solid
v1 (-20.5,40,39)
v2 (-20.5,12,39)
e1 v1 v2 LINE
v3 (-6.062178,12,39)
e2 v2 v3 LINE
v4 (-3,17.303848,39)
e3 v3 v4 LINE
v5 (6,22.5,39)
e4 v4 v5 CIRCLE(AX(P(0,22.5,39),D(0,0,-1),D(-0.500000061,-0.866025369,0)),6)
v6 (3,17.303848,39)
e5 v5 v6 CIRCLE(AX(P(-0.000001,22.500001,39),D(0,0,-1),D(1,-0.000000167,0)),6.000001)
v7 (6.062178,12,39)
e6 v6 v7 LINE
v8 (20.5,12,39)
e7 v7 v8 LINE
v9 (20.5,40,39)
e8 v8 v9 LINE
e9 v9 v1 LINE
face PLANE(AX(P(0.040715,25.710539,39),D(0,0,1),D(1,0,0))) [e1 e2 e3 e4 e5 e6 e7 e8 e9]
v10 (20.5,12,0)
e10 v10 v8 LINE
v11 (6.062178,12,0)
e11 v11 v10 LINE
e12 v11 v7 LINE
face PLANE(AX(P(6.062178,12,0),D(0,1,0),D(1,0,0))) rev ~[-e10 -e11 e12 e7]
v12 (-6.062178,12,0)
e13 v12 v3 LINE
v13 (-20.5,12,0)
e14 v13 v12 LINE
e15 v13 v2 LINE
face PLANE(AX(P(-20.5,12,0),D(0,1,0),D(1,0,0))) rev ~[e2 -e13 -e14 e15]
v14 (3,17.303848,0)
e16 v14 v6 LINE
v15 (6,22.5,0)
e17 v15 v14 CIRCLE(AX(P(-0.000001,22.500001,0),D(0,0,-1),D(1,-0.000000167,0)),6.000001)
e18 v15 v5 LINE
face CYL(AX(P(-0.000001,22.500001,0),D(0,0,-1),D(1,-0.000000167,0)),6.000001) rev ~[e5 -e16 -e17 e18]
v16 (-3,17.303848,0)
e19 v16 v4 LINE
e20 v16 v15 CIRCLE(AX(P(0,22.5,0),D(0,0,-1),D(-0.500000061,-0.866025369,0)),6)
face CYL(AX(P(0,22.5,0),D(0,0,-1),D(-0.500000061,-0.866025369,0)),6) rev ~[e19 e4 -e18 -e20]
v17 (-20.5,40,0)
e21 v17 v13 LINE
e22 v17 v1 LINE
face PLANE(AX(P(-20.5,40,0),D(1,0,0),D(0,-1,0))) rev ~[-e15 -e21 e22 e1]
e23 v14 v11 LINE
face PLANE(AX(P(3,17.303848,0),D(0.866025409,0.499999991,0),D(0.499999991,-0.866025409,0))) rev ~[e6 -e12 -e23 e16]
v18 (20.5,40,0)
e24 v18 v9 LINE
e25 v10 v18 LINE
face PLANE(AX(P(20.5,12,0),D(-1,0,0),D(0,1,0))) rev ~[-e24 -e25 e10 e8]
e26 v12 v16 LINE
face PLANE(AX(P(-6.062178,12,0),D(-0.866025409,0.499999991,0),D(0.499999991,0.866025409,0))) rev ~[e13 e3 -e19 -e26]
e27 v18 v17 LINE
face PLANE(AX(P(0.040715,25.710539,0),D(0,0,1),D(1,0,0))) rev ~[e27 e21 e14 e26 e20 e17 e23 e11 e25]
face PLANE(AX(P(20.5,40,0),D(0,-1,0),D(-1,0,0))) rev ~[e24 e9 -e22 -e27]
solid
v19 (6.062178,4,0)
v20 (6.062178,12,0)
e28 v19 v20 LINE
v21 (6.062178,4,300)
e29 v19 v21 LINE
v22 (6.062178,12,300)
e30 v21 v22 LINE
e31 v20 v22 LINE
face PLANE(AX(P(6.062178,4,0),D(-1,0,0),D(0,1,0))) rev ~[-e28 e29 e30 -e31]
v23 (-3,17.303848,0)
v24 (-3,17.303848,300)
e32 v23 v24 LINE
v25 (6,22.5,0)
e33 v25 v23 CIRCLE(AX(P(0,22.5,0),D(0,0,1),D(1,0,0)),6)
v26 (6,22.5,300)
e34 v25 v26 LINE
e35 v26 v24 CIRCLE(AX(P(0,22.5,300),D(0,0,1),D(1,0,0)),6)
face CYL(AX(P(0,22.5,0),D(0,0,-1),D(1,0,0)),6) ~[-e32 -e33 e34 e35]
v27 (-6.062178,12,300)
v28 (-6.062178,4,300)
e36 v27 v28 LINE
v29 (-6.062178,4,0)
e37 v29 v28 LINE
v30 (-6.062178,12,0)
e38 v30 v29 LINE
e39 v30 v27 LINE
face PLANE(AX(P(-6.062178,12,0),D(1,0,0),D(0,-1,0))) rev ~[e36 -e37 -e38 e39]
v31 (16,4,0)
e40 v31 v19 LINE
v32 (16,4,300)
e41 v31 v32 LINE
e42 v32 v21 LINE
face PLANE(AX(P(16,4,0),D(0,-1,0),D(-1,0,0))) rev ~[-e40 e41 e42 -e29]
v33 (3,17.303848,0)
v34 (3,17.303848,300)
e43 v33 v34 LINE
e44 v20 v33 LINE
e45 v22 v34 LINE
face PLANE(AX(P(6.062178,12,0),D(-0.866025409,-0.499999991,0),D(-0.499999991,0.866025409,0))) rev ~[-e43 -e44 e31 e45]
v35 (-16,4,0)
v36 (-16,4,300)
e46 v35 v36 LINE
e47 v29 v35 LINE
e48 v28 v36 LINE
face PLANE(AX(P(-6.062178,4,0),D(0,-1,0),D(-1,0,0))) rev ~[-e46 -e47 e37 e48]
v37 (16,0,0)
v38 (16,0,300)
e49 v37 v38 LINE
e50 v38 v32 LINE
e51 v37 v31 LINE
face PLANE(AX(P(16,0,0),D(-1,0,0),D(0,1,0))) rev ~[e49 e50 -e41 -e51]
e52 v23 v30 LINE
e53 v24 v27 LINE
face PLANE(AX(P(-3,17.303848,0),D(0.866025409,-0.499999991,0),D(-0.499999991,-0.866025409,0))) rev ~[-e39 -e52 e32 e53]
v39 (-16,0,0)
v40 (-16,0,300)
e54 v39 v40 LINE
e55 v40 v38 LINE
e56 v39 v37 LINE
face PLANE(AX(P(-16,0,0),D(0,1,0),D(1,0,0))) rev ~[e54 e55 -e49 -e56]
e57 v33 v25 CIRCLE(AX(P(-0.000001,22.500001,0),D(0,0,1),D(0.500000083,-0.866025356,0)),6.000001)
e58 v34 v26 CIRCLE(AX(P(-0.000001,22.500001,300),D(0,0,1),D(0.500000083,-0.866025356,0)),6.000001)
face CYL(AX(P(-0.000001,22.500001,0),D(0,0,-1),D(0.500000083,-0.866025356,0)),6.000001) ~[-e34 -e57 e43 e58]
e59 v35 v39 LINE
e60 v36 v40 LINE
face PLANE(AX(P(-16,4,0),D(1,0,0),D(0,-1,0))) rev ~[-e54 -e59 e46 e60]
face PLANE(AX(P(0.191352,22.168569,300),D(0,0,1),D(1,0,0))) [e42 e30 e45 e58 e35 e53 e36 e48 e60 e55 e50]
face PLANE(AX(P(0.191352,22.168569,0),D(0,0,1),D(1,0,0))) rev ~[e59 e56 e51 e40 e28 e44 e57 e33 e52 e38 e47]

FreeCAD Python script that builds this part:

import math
import FreeCAD as App
import Part
import Sketcher

V = App.Vector
Q = App.Units.Quantity

doc = App.newDocument("Part")
body = doc.addObject("PartDesign::Body", "Body")

# Sketch on XY plane
sketch1 = body.newObject("Sketcher::SketchObject", "Sketch")
sketch1.AttachmentSupport = (doc.getObject("XY_Plane"), [""])
sketch1.MapMode = "FlatFace"
sketch1.addGeometry([
    Part.ArcOfCircle(Part.Circle(V(-0.000001, 22.500001, 0), V(0, 0, 1), 6.000001), math.radians(-59.999994), math.radians(-0.00001)),  # 0
    Part.ArcOfCircle(Part.Circle(V(0, 22.5, 0), V(0, 0, 1), 6), math.radians(0), math.radians(239.999996)),  # 1
    Part.LineSegment(V(-3, 17.303848, 0), V(-6.062178, 12, 0)),  # 2
    Part.LineSegment(V(-6.062178, 12, 0), V(-6.062178, 4, 0)),  # 3
    Part.LineSegment(V(-6.062178, 4, 0), V(-16, 4, 0)),  # 4
    Part.LineSegment(V(-16, 4, 0), V(-16, 0, 0)),  # 5
    Part.LineSegment(V(-16, 0, 0), V(16, 0, 0)),  # 6
    Part.LineSegment(V(16, 0, 0), V(16, 4, 0)),  # 7
    Part.LineSegment(V(16, 4, 0), V(6.062178, 4, 0)),  # 8
    Part.LineSegment(V(6.062178, 4, 0), V(6.062178, 12, 0)),  # 9
    Part.LineSegment(V(6.062178, 12, 0), V(3, 17.303848, 0)),  # 10
], False)
sketch1.addConstraint([
    Sketcher.Constraint("Tangent", 0, 2, 1, 1),
    Sketcher.Constraint("Coincident", 1, 2, 2, 1),
    Sketcher.Constraint("Coincident", 2, 2, 3, 1),
    Sketcher.Constraint("Coincident", 3, 2, 4, 1),
    Sketcher.Constraint("Coincident", 4, 2, 5, 1),
    Sketcher.Constraint("Coincident", 5, 2, 6, 1),
    Sketcher.Constraint("Coincident", 6, 2, 7, 1),
    Sketcher.Constraint("Coincident", 7, 2, 8, 1),
    Sketcher.Constraint("Coincident", 8, 2, 9, 1),
    Sketcher.Constraint("Coincident", 9, 2, 10, 1),
    Sketcher.Constraint("Coincident", 10, 2, 0, 1),
    Sketcher.Constraint("Vertical", 3),
    Sketcher.Constraint("Horizontal", 4),
    Sketcher.Constraint("Vertical", 5),
    Sketcher.Constraint("Horizontal", 6),
    Sketcher.Constraint("Vertical", 7),
    Sketcher.Constraint("Horizontal", 8),
    Sketcher.Constraint("Vertical", 9),
    Sketcher.Constraint("Equal", 0, 1),
    Sketcher.Constraint("Symmetric", 5, 2, 6, 2, -1, 1),
    Sketcher.Constraint("Symmetric", 3, 2, 8, 2, -2),
    Sketcher.Constraint("Symmetric", 1, 2, 10, 2, -2),
    Sketcher.Constraint("Horizontal", 1, 3, 0, 2),
    Sketcher.Constraint("Horizontal", 2, 2, 9, 2),
    Sketcher.Constraint("Radius", 0, 6.000001),
    Sketcher.Constraint("DistanceX", 6, 1, 6, 2, 32.0),
    Sketcher.Constraint("DistanceY", 3, 2, 3, 1, 8.0),
    Sketcher.Constraint("DistanceY", 5, 2, 5, 1, 4.0),
    Sketcher.Constraint("Angle", 2, Q("-119.999999 deg")),
    Sketcher.Constraint("DistanceX", 1, 2, -1, 1, 3.0),
    Sketcher.Constraint("DistanceY", -1, 1, 0, 3, 22.500001),
])
pad1 = body.newObject("PartDesign::Pad", "Pad")
pad1.Profile = sketch1
pad1.Length = 300
body2 = doc.addObject("PartDesign::Body", "Body001")

# Sketch on XY plane
sketch2 = body2.newObject("Sketcher::SketchObject", "Sketch001")
sketch2.AttachmentSupport = (doc.getObject("XY_Plane001"), [""])
sketch2.MapMode = "FlatFace"
sketch2.addGeometry([
    Part.ArcOfCircle(Part.Circle(V(0, 22.5, 0), V(0, 0, 1), 6), math.radians(0), math.radians(239.999996)),  # 0
    Part.ArcOfCircle(Part.Circle(V(-0.000001, 22.500001, 0), V(0, 0, 1), 6.000001), math.radians(-59.999994), math.radians(-0.00001)),  # 1
    Part.LineSegment(V(3, 17.303848, 0), V(6.062178, 12, 0)),  # 2
    Part.LineSegment(V(6.062178, 12, 0), V(20.5, 12, 0)),  # 3
    Part.LineSegment(V(20.5, 12, 0), V(20.5, 40, 0)),  # 4
    Part.LineSegment(V(20.5, 40, 0), V(-20.5, 40, 0)),  # 5
    Part.LineSegment(V(-20.5, 40, 0), V(-20.5, 12, 0)),  # 6
    Part.LineSegment(V(-20.5, 12, 0), V(-6.062178, 12, 0)),  # 7
    Part.LineSegment(V(-6.062178, 12, 0), V(-3, 17.303848, 0)),  # 8
], False)
sketch2.addConstraint([
    Sketcher.Constraint("Tangent", 0, 1, 1, 2),
    Sketcher.Constraint("Coincident", 1, 1, 2, 1),
    Sketcher.Constraint("Coincident", 2, 2, 3, 1),
    Sketcher.Constraint("Coincident", 3, 2, 4, 1),
    Sketcher.Constraint("Coincident", 4, 2, 5, 1),
    Sketcher.Constraint("Coincident", 5, 2, 6, 1),
    Sketcher.Constraint("Coincident", 6, 2, 7, 1),
    Sketcher.Constraint("Coincident", 7, 2, 8, 1),
    Sketcher.Constraint("Coincident", 8, 2, 0, 2),
    Sketcher.Constraint("Horizontal", 3),
    Sketcher.Constraint("Vertical", 4),
    Sketcher.Constraint("Horizontal", 5),
    Sketcher.Constraint("Vertical", 6),
    Sketcher.Constraint("Horizontal", 7),
    Sketcher.Constraint("Equal", 0, 1),
    Sketcher.Constraint("Symmetric", 3, 2, 6, 2, -2),
    Sketcher.Constraint("Symmetric", 1, 1, 8, 2, -2),
    Sketcher.Constraint("Horizontal", 1, 3, 0, 1),
    Sketcher.Constraint("Equal", 3, 7),
    Sketcher.Constraint("Radius", 0, 6.0),
    Sketcher.Constraint("DistanceX", 5, 2, 5, 1, 41.0),
    Sketcher.Constraint("DistanceY", 4, 1, 4, 2, 28.0),
    Sketcher.Constraint("Angle", 2, Q("-60.000001 deg")),
    Sketcher.Constraint("DistanceX", -1, 1, 1, 1, 3.0),
    Sketcher.Constraint("DistanceY", -1, 1, 2, 2, 12.0),
    Sketcher.Constraint("DistanceY", -1, 1, 0, 3, 22.5),
])
pad2 = body2.newObject("PartDesign::Pad", "Pad001")
pad2.Profile = sketch2
pad2.Length = 39

doc.recompute()
